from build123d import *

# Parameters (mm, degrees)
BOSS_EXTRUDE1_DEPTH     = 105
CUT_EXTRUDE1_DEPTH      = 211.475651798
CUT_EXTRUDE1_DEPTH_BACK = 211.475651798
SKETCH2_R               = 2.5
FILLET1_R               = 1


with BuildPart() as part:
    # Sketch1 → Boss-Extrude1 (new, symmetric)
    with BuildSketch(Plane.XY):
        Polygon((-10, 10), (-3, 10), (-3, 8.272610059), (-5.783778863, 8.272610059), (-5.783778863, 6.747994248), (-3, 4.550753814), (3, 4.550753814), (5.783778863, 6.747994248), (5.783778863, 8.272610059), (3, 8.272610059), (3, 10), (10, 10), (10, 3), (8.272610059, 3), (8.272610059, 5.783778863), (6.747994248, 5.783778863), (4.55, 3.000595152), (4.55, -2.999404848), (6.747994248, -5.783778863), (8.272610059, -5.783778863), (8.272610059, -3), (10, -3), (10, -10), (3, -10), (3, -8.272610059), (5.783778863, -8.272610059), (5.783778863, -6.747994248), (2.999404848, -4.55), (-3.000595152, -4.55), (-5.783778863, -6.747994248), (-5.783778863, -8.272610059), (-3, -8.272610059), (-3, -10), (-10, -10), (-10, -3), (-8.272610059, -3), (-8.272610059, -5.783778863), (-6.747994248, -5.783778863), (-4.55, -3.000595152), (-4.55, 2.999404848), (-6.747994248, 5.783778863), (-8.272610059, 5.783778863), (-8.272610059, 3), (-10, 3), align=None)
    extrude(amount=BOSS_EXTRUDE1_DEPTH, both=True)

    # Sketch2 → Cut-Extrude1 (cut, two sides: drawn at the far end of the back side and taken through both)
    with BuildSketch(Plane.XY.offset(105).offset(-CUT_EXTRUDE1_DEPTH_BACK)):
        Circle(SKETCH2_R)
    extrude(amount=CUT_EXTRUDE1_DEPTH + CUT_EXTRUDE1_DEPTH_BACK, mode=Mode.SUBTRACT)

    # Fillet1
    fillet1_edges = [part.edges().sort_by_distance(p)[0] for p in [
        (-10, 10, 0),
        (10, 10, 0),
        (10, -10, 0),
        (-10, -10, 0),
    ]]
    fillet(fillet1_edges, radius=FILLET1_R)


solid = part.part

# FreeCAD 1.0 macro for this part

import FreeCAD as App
import Part
import Sketcher
from FreeCAD import Vector


def edges_at(feature, points):
    """Names of the edges that pass closest to the given points."""
    edges = feature.Shape.Edges
    near = lambda p: min(range(len(edges)), key=lambda i: edges[i].distToShape(Part.Vertex(*p))[0])
    return sorted({f"Edge{near(p) + 1}" for p in points})


def add_polygon(sketch, points):
    """Adds a closed chain of lines whose ends are joined by coincident constraints."""
    first, n = sketch.GeometryCount, len(points)
    for a, b in zip(points, points[1:] + points[:1]):
        sketch.addGeometry(Part.LineSegment(App.Vector(*a, 0), App.Vector(*b, 0)), False)
    for i in range(n):
        sketch.addConstraint(Sketcher.Constraint("Coincident", first + i, 2, first + (i + 1) % n, 1))

doc = App.newDocument("Part")
params = doc.addObject("Spreadsheet::Sheet", "Params")
for row, (alias, value) in enumerate([
    ("sketch1_width", "7 mm"),
    ("sketch1_width2", "6 mm"),
    ("pad1_length", "210 mm"),
    ("sketch2_diameter", "5 mm"),
    ("fillet_radius", "1 mm"),
], start=1):
    params.set(f"A{row}", alias)
    params.set(f"B{row}", "=" + value)
    params.setAlias(f"B{row}", alias)

body = doc.addObject("PartDesign::Body", "Body")

# Sketch on XY plane
sketch1 = body.newObject("Sketcher::SketchObject", "Sketch")
sketch1.AttachmentSupport = (doc.getObject("XY_Plane"), [""])
sketch1.MapMode = "FlatFace"
add_polygon(sketch1, [(-3, 10), (-10, 10), (-10, 3), (-8.3, 3), (-8.3, 5.8), (-6.7, 5.8), (-4.5, 3), (-4.5, -3), (-6.7, -5.8), (-8.3, -5.8), (-8.3, -3), (-10, -3), (-10, -10), (-3, -10), (-3, -8.3), (-5.8, -8.3), (-5.8, -6.7), (-3, -4.5), (3, -4.5), (5.8, -6.7), (5.8, -8.3), (3, -8.3), (3, -10), (10, -10), (10, -3), (8.3, -3), (8.3, -5.8), (6.7, -5.8), (4.5, -3), (4.5, 3), (6.7, 5.8), (8.3, 5.8), (8.3, 3), (10, 3), (10, 10), (3, 10), (3, 8.3), (5.8, 8.3), (5.8, 6.7), (3, 4.6), (-3, 4.6), (-5.8, 6.7), (-5.8, 8.3), (-3, 8.3)])  # lines 0-43
sketch1.addConstraint(Sketcher.Constraint("Horizontal", 0))
sketch1.addConstraint(Sketcher.Constraint("Vertical", 1))
sketch1.addConstraint(Sketcher.Constraint("Horizontal", 2))
sketch1.addConstraint(Sketcher.Constraint("Vertical", 3))
sketch1.addConstraint(Sketcher.Constraint("Horizontal", 4))
sketch1.addConstraint(Sketcher.Constraint("Vertical", 6))
sketch1.addConstraint(Sketcher.Constraint("Horizontal", 8))
sketch1.addConstraint(Sketcher.Constraint("Vertical", 9))
sketch1.addConstraint(Sketcher.Constraint("Horizontal", 10))
sketch1.addConstraint(Sketcher.Constraint("Vertical", 11))
sketch1.addConstraint(Sketcher.Constraint("Horizontal", 12))
sketch1.addConstraint(Sketcher.Constraint("Vertical", 13))
sketch1.addConstraint(Sketcher.Constraint("Horizontal", 14))
sketch1.addConstraint(Sketcher.Constraint("Vertical", 15))
sketch1.addConstraint(Sketcher.Constraint("Horizontal", 17))
sketch1.addConstraint(Sketcher.Constraint("Vertical", 19))
sketch1.addConstraint(Sketcher.Constraint("Horizontal", 20))
sketch1.addConstraint(Sketcher.Constraint("Vertical", 21))
sketch1.addConstraint(Sketcher.Constraint("Horizontal", 22))
sketch1.addConstraint(Sketcher.Constraint("Vertical", 23))
sketch1.addConstraint(Sketcher.Constraint("Horizontal", 24))
sketch1.addConstraint(Sketcher.Constraint("Vertical", 25))
sketch1.addConstraint(Sketcher.Constraint("Horizontal", 26))
sketch1.addConstraint(Sketcher.Constraint("Vertical", 28))
sketch1.addConstraint(Sketcher.Constraint("Horizontal", 30))
sketch1.addConstraint(Sketcher.Constraint("Vertical", 31))
sketch1.addConstraint(Sketcher.Constraint("Horizontal", 32))
sketch1.addConstraint(Sketcher.Constraint("Vertical", 33))
sketch1.addConstraint(Sketcher.Constraint("Horizontal", 34))
sketch1.addConstraint(Sketcher.Constraint("Vertical", 35))
sketch1.addConstraint(Sketcher.Constraint("Horizontal", 36))
sketch1.addConstraint(Sketcher.Constraint("Vertical", 37))
sketch1.addConstraint(Sketcher.Constraint("Horizontal", 39))
sketch1.addConstraint(Sketcher.Constraint("Vertical", 41))
sketch1.addConstraint(Sketcher.Constraint("Horizontal", 42))
sketch1.addConstraint(Sketcher.Constraint("Vertical", 43))
sketch1.addConstraint(Sketcher.Constraint("Symmetric", 0, 2, 22, 2, -1, 1))
sketch1.addConstraint(Sketcher.Constraint("Symmetric", 2, 2, 24, 2, -1, 1))
sketch1.addConstraint(Sketcher.Constraint("Symmetric", 4, 2, 26, 2, -1, 1))
sketch1.addConstraint(Sketcher.Constraint("Symmetric", 5, 2, 27, 2, -1, 1))
sketch1.addConstraint(Sketcher.Constraint("Symmetric", 7, 2, 29, 2, -1, 1))
sketch1.addConstraint(Sketcher.Constraint("Symmetric", 9, 2, 31, 2, -1, 1))
sketch1.addConstraint(Sketcher.Constraint("Symmetric", 11, 2, 33, 2, -1, 1))
sketch1.addConstraint(Sketcher.Constraint("Symmetric", 13, 2, 35, 2, -1, 1))
sketch1.addConstraint(Sketcher.Constraint("Symmetric", 15, 2, 37, 2, -1, 1))
sketch1.addConstraint(Sketcher.Constraint("Symmetric", 18, 2, 40, 2, -1, 1))
sketch1.addConstraint(Sketcher.Constraint("Symmetric", 20, 2, 42, 2, -1, 1))
sketch1.addConstraint(Sketcher.Constraint("Symmetric", 15, 2, 18, 2, -2))
sketch1.addConstraint(Sketcher.Constraint("Symmetric", 13, 2, 20, 2, -2))
sketch1.addConstraint(Sketcher.Constraint("Symmetric", 11, 2, 22, 2, -2))
sketch1.addConstraint(Sketcher.Constraint("Symmetric", 9, 2, 24, 2, -2))
sketch1.addConstraint(Sketcher.Constraint("Symmetric", 7, 2, 26, 2, -2))
sketch1.addConstraint(Sketcher.Constraint("Parallel", 7, 29))
sketch1.addConstraint(Sketcher.Constraint("Vertical", 35, 2, 38, 2))
sketch1.addConstraint(Sketcher.Constraint("Vertical", 13, 2, 39, 2))
sketch1.addConstraint(Sketcher.Constraint("Equal", 17, 39))
sketch1.addConstraint(Sketcher.Constraint("Equal", 34, 1))
sketch1.addConstraint(Sketcher.Constraint("Equal", 42, 3))
sketch1.addConstraint(Sketcher.Constraint("Equal", 39, 6))
sketch1.addConstraint(Sketcher.Constraint("Equal", 32, 13))
sketch1.addConstraint(Sketcher.Constraint("Equal", 30, 15))
sketch1.addConstraint(Sketcher.Constraint("Equal", 7, 16))
sketch1.addConstraint(Sketcher.Constraint("Equal", 5, 18))
sketch1.addConstraint(Sketcher.Constraint("Equal", 29, 38))
sketch1.addConstraint(Sketcher.Constraint("DistanceX", 0, 2, 0, 1, 7.0))
sketch1.addConstraint(Sketcher.Constraint("DistanceX", 17, 1, 17, 2, 6.0))
sketch1.addConstraint(Sketcher.Constraint("DistanceY", -1, 1, 0, 2, 10.0))
sketch1.addConstraint(Sketcher.Constraint("DistanceX", 5, 2, -1, 1, 4.55))
sketch1.addConstraint(Sketcher.Constraint("DistanceX", 2, 1, 2, 2, 1.72739))
sketch1.addConstraint(Sketcher.Constraint("DistanceX", 14, 2, 14, 1, 2.783779))
sketch1.addConstraint(Sketcher.Constraint("DistanceY", 15, 2, 6, 2, 3.747399))
sketch1.addConstraint(Sketcher.Constraint("Distance", 5, 3.547382))
sketch1.setExpression("Constraints[108]", "Params.sketch1_width")
sketch1.setExpression("Constraints[109]", "Params.sketch1_width2")
pad1 = body.newObject("PartDesign::Pad", "Pad")
pad1.Profile = sketch1
pad1.setExpression("Length", "Params.pad1_length")
pad1.Midplane = True

# Sketch on XY plane
sketch2 = body.newObject("Sketcher::SketchObject", "Sketch001")
sketch2.AttachmentSupport = (doc.getObject("XY_Plane"), [""])
sketch2.MapMode = "FlatFace"
sketch2.AttachmentOffset = App.Placement(Vector(0, 0, 105), App.Rotation())
sketch2.addGeometry(Part.Circle(Vector(0, 0, 0), Vector(0, 0, 1), 2.5), False)
sketch2.addConstraint(Sketcher.Constraint("Coincident", 0, 3, -1, 1))
sketch2.addConstraint(Sketcher.Constraint("Diameter", 0, 5.0))
sketch2.setExpression("Constraints[1]", "Params.sketch2_diameter")
pocket1 = body.newObject("PartDesign::Pocket", "Pocket")
pocket1.Profile = sketch2
pocket1.Type = "ThroughAll"
pocket1.Midplane = True
doc.recompute()

fillet = body.newObject("PartDesign::Fillet", "Fillet")
fillet.Base = (pocket1, edges_at(pocket1, [
    (-10, 10, 0),
    (10, 10, 0),
    (10, -10, 0),
    (-10, -10, 0),
]))
fillet.setExpression("Radius", "Params.fillet_radius")

doc.recompute()
